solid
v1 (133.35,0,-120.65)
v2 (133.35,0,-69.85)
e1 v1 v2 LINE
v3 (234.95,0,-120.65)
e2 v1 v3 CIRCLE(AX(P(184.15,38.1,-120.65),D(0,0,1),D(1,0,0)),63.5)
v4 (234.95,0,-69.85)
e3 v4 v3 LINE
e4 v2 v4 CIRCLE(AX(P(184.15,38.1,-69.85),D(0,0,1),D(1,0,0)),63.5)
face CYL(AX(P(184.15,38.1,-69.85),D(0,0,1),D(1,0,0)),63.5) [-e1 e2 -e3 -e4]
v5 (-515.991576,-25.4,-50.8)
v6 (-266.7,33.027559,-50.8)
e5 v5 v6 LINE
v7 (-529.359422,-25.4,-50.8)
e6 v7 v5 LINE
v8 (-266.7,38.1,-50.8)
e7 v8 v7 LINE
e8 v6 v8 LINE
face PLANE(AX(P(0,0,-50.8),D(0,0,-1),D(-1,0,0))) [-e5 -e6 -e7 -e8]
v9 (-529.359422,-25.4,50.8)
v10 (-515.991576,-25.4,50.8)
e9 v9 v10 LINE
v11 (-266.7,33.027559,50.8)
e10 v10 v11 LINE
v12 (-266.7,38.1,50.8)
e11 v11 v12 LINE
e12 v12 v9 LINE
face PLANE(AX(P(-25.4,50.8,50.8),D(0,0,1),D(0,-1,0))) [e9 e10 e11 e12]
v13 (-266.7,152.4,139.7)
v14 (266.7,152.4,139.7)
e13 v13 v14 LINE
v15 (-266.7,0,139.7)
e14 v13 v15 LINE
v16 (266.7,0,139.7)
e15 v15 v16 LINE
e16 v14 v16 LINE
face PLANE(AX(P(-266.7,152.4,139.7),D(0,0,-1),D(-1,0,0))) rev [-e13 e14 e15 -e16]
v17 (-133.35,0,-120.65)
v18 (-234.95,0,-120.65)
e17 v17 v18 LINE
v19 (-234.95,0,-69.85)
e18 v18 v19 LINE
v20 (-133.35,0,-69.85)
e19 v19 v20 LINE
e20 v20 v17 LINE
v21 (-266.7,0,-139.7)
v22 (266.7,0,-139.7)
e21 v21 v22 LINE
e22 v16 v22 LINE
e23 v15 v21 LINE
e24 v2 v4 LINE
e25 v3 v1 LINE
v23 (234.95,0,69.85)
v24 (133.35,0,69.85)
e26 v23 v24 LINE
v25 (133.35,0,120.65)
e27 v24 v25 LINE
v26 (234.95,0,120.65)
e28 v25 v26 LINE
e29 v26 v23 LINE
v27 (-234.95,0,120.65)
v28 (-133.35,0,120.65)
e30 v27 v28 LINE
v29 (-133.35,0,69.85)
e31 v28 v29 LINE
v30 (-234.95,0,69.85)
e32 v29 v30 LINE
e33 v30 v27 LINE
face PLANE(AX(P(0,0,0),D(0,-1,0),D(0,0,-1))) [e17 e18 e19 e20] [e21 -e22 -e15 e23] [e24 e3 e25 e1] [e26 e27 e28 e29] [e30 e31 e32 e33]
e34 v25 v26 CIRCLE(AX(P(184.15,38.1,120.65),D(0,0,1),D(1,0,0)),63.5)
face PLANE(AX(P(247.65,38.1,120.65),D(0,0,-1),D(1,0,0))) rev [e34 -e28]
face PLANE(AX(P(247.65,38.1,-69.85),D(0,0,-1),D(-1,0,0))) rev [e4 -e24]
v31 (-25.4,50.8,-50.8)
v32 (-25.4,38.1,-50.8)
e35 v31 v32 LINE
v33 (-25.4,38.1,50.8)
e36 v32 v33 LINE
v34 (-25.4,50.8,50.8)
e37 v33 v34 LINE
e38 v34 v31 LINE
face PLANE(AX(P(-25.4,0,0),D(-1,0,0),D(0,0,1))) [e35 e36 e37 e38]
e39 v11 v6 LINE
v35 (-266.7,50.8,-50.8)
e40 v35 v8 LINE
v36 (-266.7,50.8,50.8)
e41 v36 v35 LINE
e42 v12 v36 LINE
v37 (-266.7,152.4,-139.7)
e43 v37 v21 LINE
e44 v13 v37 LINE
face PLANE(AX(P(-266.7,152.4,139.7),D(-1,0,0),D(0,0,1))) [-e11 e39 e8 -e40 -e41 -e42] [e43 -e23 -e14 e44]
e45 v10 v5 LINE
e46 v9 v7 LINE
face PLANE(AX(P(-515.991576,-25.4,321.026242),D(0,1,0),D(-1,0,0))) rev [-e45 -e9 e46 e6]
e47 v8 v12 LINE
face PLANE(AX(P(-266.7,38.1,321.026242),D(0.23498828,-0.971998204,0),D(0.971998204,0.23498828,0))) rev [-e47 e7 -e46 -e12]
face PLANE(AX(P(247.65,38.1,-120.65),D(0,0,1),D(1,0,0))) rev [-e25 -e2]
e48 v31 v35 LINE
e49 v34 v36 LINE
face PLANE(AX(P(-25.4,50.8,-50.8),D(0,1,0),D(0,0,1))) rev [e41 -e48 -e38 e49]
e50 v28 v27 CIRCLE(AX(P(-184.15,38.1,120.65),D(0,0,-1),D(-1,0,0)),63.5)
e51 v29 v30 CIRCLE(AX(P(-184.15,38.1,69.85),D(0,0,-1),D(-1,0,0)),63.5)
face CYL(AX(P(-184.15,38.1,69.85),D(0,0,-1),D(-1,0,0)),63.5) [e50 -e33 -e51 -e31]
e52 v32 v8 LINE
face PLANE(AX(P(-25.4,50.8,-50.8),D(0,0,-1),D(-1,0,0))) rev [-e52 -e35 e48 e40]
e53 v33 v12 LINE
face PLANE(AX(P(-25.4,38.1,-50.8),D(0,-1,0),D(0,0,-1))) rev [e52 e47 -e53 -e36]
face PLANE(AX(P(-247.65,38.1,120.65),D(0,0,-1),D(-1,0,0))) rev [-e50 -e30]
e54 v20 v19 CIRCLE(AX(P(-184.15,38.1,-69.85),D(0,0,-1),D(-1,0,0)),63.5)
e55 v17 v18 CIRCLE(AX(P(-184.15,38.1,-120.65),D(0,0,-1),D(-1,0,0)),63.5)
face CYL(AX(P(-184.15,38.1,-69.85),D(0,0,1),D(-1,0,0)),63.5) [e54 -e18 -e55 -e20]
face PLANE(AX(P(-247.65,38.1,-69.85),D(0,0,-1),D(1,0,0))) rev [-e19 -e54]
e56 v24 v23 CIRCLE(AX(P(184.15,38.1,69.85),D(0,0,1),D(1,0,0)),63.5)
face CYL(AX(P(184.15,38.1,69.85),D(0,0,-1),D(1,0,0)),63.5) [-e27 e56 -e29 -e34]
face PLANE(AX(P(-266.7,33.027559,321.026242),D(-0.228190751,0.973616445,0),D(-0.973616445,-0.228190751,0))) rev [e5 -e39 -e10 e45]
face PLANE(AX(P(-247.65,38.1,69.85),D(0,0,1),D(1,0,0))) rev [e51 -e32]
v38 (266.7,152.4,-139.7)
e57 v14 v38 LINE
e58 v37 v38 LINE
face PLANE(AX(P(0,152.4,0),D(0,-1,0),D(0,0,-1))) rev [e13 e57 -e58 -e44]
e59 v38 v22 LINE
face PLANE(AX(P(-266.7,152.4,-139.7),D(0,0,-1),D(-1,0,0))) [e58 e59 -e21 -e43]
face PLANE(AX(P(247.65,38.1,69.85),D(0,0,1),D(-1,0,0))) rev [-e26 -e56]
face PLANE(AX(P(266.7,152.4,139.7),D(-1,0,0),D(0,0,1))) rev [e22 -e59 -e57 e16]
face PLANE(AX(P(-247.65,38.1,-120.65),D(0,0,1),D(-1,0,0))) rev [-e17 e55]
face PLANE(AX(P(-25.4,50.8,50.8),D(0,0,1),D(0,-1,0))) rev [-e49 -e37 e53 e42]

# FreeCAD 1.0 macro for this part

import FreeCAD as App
import Part
import Sketcher

V = App.Vector
Q = App.Units.Quantity


def add_polygon(sketch, points):
    """Adds a closed chain of lines whose ends are joined by coincident constraints."""
    first, n = sketch.GeometryCount, len(points)
    for a, b in zip(points, points[1:] + points[:1]):
        sketch.addGeometry(Part.LineSegment(App.Vector(*a, 0), App.Vector(*b, 0)), False)
    for i in range(n):
        sketch.addConstraint(Sketcher.Constraint("Coincident", first + i, 2, first + (i + 1) % n, 1))

doc = App.newDocument("Part")
body = doc.addObject("PartDesign::Body", "Body")

# Sketch on XZ plane
sketch1 = doc.addObject("Sketcher::SketchObject", "Sketch")
body.addObject(sketch1)
sketch1.AttachmentSupport = (doc.XZ_Plane, [""])
sketch1.MapMode = "FlatFace"
add_polygon(sketch1, [(-267, -140), (-267, 140), (267, 140), (267, -140)])  # lines 0-3
sketch1.addConstraint([
    Sketcher.Constraint("Vertical", 0),
    Sketcher.Constraint("Horizontal", 1),
    Sketcher.Constraint("Vertical", 2),
    Sketcher.Constraint("Horizontal", 3),
    Sketcher.Constraint("Symmetric", 0, 2, 2, 2, -1, 1),
    Sketcher.Constraint("DistanceX", 1, 1, 1, 2, Q("21 in")),
    Sketcher.Constraint("DistanceY", 0, 1, 0, 2, Q("11 in")),
])
pad1 = doc.addObject("PartDesign::Pad", "Pad")
body.addObject(pad1)
pad1.Profile = sketch1
pad1.Length = Q("6 in")
pad1.Reversed = True

# Sketch on XZ plane
sketch2 = doc.addObject("Sketcher::SketchObject", "Sketch001")
body.addObject(sketch2)
sketch2.AttachmentSupport = (doc.XZ_Plane, [""])
sketch2.MapMode = "FlatFace"
sketch2.AttachmentOffset = App.Placement(V(0, 0, -1.5 * 25.4), App.Rotation())
add_polygon(sketch2, [(-184, 70), (-184, 121), (-248, 121), (-248, 70)])  # lines 0-3
sketch2.addGeometry(Part.LineSegment(V(-184, 70, 0), V(-184, 121, 0)), True)  # axis
sketch2.addConstraint([
    Sketcher.Constraint("Vertical", 0),
    Sketcher.Constraint("Horizontal", 1),
    Sketcher.Constraint("Vertical", 2),
    Sketcher.Constraint("Horizontal", 3),
    Sketcher.Constraint("Vertical", 4),
    Sketcher.Constraint("Coincident", 4, 1, 3, 2),
    Sketcher.Constraint("Horizontal", 1, 2, 4, 2),
    Sketcher.Constraint("DistanceY", 0, 1, 0, 2, Q("2 in")),
    Sketcher.Constraint("DistanceX", 1, 2, 1, 1, Q("2.5 in")),
    Sketcher.Constraint("DistanceX", 0, 2, -1, 1, Q("7.25 in")),
    Sketcher.Constraint("DistanceY", -1, 1, 0, 2, Q("4.75 in")),
])
revolution = doc.addObject("PartDesign::Revolution", "Revolution")
body.addObject(revolution)
revolution.Profile = sketch2
revolution.ReferenceAxis = (sketch2, ["Axis0"])
revolution.Angle = 360
doc.recompute()

mirrored = doc.addObject("PartDesign::Mirrored", "Mirrored")
body.addObject(mirrored)
mirrored.Originals = [revolution]
mirrored.MirrorPlane = (doc.XY_Plane, [""])
body.Tip = mirrored
doc.recompute()

mirrored2 = doc.addObject("PartDesign::Mirrored", "Mirrored001")
body.addObject(mirrored2)
mirrored2.Originals = [revolution]
mirrored2.MirrorPlane = (doc.YZ_Plane, [""])
body.Tip = mirrored2

# Sketch on XZ plane
sketch3 = doc.addObject("Sketcher::SketchObject", "Sketch002")
body.addObject(sketch3)
sketch3.AttachmentSupport = (doc.XZ_Plane, [""])
sketch3.MapMode = "FlatFace"
sketch3.AttachmentOffset = App.Placement(V(0, 0, -1.5 * 25.4), App.Rotation())
add_polygon(sketch3, [(184, -70), (184, -121), (248, -121), (248, -70)])  # lines 0-3
sketch3.addGeometry(Part.LineSegment(V(184, -70, 0), V(184, -121, 0)), True)  # axis
sketch3.addConstraint([
    Sketcher.Constraint("Vertical", 0),
    Sketcher.Constraint("Horizontal", 1),
    Sketcher.Constraint("Vertical", 2),
    Sketcher.Constraint("Horizontal", 3),
    Sketcher.Constraint("Vertical", 4),
    Sketcher.Constraint("Coincident", 4, 1, 3, 2),
    Sketcher.Constraint("Horizontal", 1, 2, 4, 2),
    Sketcher.Constraint("DistanceY", 0, 2, 0, 1, Q("2 in")),
    Sketcher.Constraint("DistanceX", 1, 1, 1, 2, Q("2.5 in")),
    Sketcher.Constraint("DistanceX", -1, 1, 0, 2, Q("7.25 in")),
    Sketcher.Constraint("DistanceY", 0, 2, -1, 1, Q("4.75 in")),
])
revolution2 = doc.addObject("PartDesign::Revolution", "Revolution001")
body.addObject(revolution2)
revolution2.Profile = sketch3
revolution2.ReferenceAxis = (sketch3, ["Axis0"])
revolution2.Angle = 360

# Sketch on YZ plane
sketch4 = doc.addObject("Sketcher::SketchObject", "Sketch003")
body.addObject(sketch4)
sketch4.AttachmentSupport = (doc.YZ_Plane, [""])
sketch4.MapMode = "FlatFace"
sketch4.AttachmentOffset = App.Placement(V(0, 0, -10.5 * 25.4), App.Rotation())
add_polygon(sketch4, [(51, -51), (38, -51), (38, 51), (51, 51)])  # lines 0-3
sketch4.addConstraint([
    Sketcher.Constraint("Horizontal", 0),
    Sketcher.Constraint("Vertical", 1),
    Sketcher.Constraint("Horizontal", 2),
    Sketcher.Constraint("Vertical", 3),
    Sketcher.Constraint("DistanceY", 1, 1, 1, 2, Q("4 in")),
    Sketcher.Constraint("DistanceX", 0, 2, 0, 1, Q("0.5 in")),
    Sketcher.Constraint("DistanceY", 0, 2, -1, 1, Q("2 in")),
    Sketcher.Constraint("DistanceX", -1, 1, 2, 2, Q("2 in")),
])
pocket1 = doc.addObject("PartDesign::Pocket", "Pocket")
body.addObject(pocket1)
pocket1.Profile = sketch4
pocket1.Length = Q("9.5 in")
pocket1.Reversed = True

# Sketch on XY plane
sketch5 = doc.addObject("Sketcher::SketchObject", "Sketch004")
body.addObject(sketch5)
sketch5.AttachmentSupport = (doc.XY_Plane, [""])
sketch5.MapMode = "FlatFace"
sketch5.AttachmentOffset = App.Placement(V(0, 0, -2 * 25.4), App.Rotation())
add_polygon(sketch5, [(-267, 38), (-529, -25), (-516, -25), (-267, 33)])  # lines 0-3
sketch5.addConstraint([
    Sketcher.Constraint("Horizontal", 1),
    Sketcher.Constraint("Vertical", 3),
    Sketcher.Constraint("DistanceY", 0, 2, -1, 1, Q("1 in")),
    Sketcher.Constraint("DistanceX", 2, 2, -1, 1, Q("10.5 in")),
    Sketcher.Constraint("DistanceY", -1, 1, 3, 2, Q("1.5 in")),
    Sketcher.Constraint("DistanceY", 3, 1, 3, 2, 5.072441),
    Sketcher.Constraint("DistanceX", 1, 1, 1, 2, 13.367846),
    Sketcher.Constraint("Distance", 0, 270.226242),
])
pad2 = doc.addObject("PartDesign::Pad", "Pad001")
body.addObject(pad2)
pad2.Profile = sketch5
pad2.Length = Q("4 in")

doc.recompute()
